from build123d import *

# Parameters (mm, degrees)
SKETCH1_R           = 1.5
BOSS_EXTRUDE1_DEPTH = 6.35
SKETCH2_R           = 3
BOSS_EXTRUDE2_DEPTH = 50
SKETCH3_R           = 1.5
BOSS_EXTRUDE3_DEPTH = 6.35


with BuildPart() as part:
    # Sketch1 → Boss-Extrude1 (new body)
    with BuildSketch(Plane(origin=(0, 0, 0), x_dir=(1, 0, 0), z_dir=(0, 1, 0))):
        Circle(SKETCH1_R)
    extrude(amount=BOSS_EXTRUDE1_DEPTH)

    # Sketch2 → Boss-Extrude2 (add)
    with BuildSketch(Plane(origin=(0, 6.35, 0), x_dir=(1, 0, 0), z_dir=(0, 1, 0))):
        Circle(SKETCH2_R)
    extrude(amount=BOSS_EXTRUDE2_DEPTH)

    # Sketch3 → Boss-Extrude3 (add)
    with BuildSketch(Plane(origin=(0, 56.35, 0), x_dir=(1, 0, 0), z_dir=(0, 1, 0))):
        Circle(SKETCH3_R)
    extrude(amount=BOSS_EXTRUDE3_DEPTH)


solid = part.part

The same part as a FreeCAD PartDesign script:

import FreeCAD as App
import Part
import Sketcher

doc = App.newDocument("Part")
body = doc.addObject("PartDesign::Body", "Body")

# Sketch on XZ plane
sketch1 = doc.addObject("Sketcher::SketchObject", "Sketch")
body.addObject(sketch1)
sketch1.AttachmentSupport = (doc.XZ_Plane, [""])
sketch1.MapMode = "FlatFace"
sketch1.addGeometry(Part.Circle(App.Vector(0, 0, 0), App.Vector(0, 0, 1), 1.5), False)
sketch1.addConstraint(Sketcher.Constraint("Coincident", 0, 3, -1, 1))
sketch1.addConstraint(Sketcher.Constraint("Diameter", 0, 3.0))
pad1 = doc.addObject("PartDesign::Pad", "Pad")
body.addObject(pad1)
pad1.Profile = sketch1
pad1.Length = 6.35
pad1.Reversed = True

# Sketch on XZ plane
sketch2 = doc.addObject("Sketcher::SketchObject", "Sketch001")
body.addObject(sketch2)
sketch2.AttachmentSupport = (doc.XZ_Plane, [""])
sketch2.MapMode = "FlatFace"
sketch2.AttachmentOffset = App.Placement(App.Vector(0, 0, -6.35), App.Rotation())
sketch2.addGeometry(Part.Circle(App.Vector(0, 0, 0), App.Vector(0, 0, 1), 3), False)
sketch2.addConstraint(Sketcher.Constraint("Coincident", 0, 3, -1, 1))
sketch2.addConstraint(Sketcher.Constraint("Diameter", 0, 6.0))
pad2 = doc.addObject("PartDesign::Pad", "Pad001")
body.addObject(pad2)
pad2.Profile = sketch2
pad2.Length = 50
pad2.Reversed = True

# Sketch on XZ plane
sketch3 = doc.addObject("Sketcher::SketchObject", "Sketch002")
body.addObject(sketch3)
sketch3.AttachmentSupport = (doc.XZ_Plane, [""])
sketch3.MapMode = "FlatFace"
sketch3.AttachmentOffset = App.Placement(App.Vector(0, 0, -56.35), App.Rotation())
sketch3.addGeometry(Part.Circle(App.Vector(0, 0, 0), App.Vector(0, 0, 1), 1.5), False)
sketch3.addConstraint(Sketcher.Constraint("Coincident", 0, 3, -1, 1))
sketch3.addConstraint(Sketcher.Constraint("Diameter", 0, 3.0))
pad3 = doc.addObject("PartDesign::Pad", "Pad002")
body.addObject(pad3)
pad3.Profile = sketch3
pad3.Length = 6.35
pad3.Reversed = True

doc.recompute()
